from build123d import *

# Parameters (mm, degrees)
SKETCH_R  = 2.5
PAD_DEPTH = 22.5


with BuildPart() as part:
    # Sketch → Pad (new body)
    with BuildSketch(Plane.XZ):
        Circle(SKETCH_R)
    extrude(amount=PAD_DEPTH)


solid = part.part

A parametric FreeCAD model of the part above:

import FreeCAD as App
import Part
import Sketcher

V = App.Vector
Q = App.Units.Quantity

doc = App.newDocument("Part")
body = doc.addObject("PartDesign::Body", "Body")

# Sketch on XZ plane
sketch1 = body.newObject("Sketcher::SketchObject", "Sketch")
sketch1.AttachmentSupport = (doc.getObject("XZ_Plane"), [""])
sketch1.MapMode = "FlatFace"
sketch1.addGeometry(Part.Circle(V(0, 0, 0), V(0, 0, 1), 2.5), False)
sketch1.addConstraint(Sketcher.Constraint("Coincident", 0, 3, -1, 1))
sketch1.addConstraint(Sketcher.Constraint("Diameter", 0, Q("5 mm")))
pad1 = body.newObject("PartDesign::Pad", "Pad")
pad1.Profile = sketch1
pad1.Length = 22.5

doc.recompute()
